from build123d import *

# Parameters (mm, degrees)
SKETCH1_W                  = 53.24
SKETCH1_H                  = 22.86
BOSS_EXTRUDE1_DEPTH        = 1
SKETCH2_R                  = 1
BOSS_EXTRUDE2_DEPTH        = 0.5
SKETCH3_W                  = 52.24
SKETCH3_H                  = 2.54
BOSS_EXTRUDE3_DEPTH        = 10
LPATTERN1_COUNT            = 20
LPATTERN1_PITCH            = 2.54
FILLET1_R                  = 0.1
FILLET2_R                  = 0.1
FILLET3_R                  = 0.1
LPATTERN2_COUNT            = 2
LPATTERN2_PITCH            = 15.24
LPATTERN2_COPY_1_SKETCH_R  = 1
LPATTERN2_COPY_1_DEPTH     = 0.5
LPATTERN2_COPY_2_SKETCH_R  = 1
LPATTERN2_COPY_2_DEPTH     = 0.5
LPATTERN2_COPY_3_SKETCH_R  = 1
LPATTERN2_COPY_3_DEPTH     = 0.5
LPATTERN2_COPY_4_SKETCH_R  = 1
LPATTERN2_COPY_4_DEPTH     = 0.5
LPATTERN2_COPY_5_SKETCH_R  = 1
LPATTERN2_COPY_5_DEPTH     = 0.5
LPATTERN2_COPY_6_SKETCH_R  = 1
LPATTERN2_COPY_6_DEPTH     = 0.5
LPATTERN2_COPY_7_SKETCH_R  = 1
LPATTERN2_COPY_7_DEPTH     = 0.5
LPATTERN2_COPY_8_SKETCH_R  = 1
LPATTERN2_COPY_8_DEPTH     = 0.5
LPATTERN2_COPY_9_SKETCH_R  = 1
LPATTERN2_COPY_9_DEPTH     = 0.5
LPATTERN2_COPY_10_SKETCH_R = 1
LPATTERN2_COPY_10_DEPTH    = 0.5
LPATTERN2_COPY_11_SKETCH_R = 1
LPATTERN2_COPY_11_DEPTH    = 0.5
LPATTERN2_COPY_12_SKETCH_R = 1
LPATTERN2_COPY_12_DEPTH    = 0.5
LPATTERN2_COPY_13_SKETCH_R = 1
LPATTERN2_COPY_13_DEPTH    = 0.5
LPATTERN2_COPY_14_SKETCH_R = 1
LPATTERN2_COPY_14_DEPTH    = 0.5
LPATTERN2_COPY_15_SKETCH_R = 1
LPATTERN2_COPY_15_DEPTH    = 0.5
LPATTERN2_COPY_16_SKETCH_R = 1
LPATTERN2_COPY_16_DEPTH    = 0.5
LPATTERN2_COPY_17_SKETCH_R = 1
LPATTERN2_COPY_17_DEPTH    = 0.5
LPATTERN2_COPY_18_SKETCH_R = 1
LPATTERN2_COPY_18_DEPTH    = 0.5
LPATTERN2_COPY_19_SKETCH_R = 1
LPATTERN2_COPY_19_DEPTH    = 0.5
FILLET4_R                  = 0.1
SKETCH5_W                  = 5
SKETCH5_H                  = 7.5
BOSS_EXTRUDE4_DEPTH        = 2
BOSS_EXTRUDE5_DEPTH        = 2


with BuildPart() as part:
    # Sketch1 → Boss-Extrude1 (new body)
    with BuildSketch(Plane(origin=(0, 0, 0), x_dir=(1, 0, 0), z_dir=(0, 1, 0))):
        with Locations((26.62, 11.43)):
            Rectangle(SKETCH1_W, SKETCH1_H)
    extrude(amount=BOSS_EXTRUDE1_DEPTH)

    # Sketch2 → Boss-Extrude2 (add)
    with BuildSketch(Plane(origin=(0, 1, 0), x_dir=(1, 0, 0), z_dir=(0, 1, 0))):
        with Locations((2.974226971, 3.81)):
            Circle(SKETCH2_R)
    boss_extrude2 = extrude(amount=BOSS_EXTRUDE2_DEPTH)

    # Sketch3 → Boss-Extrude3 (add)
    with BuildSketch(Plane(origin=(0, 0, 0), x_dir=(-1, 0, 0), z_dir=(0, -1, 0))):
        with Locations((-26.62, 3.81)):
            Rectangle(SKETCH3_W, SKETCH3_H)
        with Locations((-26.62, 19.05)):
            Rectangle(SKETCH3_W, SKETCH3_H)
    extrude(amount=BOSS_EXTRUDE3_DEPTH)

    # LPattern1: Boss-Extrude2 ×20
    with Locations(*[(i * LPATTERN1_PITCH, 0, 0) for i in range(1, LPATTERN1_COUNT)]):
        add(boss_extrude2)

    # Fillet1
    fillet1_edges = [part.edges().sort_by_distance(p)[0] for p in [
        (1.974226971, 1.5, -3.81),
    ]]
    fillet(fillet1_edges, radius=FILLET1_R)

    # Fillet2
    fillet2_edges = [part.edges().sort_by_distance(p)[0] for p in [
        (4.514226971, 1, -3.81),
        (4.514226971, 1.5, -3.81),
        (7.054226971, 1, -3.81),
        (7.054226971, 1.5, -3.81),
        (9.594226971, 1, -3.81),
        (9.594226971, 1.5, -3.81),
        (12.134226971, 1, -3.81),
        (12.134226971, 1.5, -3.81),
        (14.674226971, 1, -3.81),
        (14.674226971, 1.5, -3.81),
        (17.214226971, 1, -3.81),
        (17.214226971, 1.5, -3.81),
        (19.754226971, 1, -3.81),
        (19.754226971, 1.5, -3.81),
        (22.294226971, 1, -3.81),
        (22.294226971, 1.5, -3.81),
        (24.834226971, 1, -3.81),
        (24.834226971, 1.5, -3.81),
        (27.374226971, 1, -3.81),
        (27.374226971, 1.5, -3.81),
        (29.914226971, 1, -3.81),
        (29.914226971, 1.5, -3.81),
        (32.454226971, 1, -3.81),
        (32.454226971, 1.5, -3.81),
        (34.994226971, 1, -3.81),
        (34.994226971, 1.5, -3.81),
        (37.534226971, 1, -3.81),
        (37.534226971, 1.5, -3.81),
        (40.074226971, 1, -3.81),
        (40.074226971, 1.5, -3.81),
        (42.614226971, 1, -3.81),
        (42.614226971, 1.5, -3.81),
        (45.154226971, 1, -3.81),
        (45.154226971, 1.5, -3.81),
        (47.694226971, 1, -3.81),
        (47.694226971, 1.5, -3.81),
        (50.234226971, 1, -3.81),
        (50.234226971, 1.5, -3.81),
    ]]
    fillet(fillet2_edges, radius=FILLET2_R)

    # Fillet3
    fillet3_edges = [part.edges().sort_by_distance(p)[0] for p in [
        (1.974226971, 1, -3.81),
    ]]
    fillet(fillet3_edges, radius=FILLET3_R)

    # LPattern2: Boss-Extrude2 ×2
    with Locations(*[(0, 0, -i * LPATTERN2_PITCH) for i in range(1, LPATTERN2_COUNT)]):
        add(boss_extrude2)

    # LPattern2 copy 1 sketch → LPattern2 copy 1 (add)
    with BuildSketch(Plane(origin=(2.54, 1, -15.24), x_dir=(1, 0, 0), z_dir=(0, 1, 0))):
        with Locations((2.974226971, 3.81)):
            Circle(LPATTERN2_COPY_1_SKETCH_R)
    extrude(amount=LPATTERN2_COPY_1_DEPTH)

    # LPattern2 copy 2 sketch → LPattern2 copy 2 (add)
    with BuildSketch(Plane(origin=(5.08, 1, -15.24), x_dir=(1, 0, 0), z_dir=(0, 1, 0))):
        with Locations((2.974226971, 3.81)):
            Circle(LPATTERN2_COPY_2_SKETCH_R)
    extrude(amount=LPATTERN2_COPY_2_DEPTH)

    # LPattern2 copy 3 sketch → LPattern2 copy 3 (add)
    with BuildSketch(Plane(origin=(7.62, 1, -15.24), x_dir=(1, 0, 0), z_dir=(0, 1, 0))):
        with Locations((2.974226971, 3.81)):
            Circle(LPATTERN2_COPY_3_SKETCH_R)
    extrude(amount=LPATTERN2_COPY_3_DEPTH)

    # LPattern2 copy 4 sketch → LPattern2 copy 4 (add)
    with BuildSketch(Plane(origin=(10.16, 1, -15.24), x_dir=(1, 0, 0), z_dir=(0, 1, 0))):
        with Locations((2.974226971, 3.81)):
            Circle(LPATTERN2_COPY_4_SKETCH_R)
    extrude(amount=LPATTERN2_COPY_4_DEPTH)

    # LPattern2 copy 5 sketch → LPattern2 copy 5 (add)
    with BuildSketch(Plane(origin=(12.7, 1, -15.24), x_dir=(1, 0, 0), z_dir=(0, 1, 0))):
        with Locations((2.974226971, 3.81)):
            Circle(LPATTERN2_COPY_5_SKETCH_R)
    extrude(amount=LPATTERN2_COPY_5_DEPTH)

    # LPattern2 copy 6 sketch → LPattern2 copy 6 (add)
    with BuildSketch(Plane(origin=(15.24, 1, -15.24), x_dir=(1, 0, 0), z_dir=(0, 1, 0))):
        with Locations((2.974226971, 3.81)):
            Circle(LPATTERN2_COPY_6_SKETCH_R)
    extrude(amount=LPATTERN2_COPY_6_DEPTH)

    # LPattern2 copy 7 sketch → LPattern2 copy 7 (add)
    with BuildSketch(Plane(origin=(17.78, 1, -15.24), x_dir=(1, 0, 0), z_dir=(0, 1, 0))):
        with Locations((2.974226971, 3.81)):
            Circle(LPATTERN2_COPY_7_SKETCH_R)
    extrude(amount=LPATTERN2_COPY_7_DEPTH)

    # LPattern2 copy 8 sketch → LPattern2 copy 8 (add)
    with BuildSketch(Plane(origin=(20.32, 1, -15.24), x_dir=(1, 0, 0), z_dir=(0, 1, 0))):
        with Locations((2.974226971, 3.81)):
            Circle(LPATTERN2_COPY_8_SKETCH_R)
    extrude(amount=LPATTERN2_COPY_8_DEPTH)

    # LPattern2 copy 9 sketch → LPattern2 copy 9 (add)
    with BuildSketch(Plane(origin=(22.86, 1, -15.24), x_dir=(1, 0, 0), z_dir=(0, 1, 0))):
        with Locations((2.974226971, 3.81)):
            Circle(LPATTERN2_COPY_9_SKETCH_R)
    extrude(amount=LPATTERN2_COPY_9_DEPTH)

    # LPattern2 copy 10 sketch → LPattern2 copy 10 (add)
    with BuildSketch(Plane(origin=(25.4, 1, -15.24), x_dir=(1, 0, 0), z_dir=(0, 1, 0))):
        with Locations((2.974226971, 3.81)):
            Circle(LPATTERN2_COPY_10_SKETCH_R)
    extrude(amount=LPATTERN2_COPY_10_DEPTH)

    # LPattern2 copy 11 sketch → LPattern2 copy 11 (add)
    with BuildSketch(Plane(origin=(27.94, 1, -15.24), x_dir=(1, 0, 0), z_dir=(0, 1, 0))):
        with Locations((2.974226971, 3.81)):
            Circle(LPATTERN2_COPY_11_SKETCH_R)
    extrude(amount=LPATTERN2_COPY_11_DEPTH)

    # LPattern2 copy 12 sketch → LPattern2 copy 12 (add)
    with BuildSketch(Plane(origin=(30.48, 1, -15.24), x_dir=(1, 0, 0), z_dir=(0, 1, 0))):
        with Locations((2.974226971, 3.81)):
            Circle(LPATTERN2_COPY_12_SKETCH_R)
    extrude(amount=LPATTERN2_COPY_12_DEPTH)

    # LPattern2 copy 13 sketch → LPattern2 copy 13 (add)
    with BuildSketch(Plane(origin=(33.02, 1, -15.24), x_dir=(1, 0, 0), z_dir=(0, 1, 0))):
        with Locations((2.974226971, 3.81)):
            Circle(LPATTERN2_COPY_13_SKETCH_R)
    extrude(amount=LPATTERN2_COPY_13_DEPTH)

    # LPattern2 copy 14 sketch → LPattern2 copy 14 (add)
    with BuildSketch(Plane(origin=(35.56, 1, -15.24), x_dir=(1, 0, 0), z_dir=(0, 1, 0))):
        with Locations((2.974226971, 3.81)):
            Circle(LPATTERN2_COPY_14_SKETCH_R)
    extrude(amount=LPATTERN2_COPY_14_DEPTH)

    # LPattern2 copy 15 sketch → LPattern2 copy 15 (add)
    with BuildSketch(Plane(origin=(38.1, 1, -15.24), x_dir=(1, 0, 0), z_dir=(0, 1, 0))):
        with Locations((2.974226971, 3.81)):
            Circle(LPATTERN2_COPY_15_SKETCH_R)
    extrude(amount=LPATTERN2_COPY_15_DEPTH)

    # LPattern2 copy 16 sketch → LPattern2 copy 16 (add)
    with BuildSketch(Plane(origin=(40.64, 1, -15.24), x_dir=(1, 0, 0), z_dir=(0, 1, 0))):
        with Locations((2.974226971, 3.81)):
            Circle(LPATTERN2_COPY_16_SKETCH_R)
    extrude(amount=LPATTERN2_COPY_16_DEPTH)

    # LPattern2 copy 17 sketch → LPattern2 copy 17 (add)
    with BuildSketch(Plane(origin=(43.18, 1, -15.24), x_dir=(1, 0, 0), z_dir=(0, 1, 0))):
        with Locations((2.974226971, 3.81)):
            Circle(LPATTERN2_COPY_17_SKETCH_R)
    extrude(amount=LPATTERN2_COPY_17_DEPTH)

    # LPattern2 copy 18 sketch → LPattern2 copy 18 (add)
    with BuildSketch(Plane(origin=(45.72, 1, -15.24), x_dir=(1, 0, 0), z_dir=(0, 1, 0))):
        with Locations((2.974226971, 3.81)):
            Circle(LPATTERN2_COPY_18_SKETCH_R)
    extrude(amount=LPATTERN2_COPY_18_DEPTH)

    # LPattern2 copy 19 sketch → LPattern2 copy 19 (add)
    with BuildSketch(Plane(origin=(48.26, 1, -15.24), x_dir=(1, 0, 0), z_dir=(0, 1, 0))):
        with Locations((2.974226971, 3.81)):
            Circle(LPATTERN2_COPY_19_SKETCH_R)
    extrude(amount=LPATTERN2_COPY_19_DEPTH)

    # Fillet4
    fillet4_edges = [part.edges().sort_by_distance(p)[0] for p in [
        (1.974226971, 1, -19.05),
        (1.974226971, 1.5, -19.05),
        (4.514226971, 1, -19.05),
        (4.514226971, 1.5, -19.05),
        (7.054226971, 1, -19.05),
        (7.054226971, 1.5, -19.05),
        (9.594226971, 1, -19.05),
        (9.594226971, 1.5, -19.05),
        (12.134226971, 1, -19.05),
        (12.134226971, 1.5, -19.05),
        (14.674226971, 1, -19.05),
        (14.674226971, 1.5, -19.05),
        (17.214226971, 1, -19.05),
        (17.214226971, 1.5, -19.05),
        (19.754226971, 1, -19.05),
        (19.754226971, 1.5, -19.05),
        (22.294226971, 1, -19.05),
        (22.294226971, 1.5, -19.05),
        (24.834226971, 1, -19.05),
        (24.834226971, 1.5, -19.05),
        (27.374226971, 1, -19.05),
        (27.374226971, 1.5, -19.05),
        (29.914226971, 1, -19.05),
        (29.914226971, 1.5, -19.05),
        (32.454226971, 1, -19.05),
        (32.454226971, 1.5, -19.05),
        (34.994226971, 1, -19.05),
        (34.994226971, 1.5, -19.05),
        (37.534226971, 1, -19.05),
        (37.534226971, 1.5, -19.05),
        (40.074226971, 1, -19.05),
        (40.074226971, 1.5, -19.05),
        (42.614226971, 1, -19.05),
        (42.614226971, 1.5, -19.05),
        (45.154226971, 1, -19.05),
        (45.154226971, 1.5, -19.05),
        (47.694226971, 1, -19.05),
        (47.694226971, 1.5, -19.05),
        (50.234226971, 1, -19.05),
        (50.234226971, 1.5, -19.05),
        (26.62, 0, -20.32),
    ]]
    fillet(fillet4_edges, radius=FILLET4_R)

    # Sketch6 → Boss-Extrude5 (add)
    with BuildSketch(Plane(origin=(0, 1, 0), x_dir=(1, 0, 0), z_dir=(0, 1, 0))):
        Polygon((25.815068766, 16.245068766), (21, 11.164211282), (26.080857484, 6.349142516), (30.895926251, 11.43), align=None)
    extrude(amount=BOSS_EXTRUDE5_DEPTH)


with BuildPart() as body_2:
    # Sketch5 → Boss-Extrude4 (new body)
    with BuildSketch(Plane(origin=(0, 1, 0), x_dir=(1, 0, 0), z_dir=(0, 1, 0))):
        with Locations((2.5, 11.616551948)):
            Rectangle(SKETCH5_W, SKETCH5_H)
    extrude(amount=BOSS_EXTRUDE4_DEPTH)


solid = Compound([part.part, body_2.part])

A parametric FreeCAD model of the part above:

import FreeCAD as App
import Part
import Sketcher

V = App.Vector


def edges_at(feature, points):
    """Names of the edges that pass closest to the given points."""
    edges = feature.Shape.Edges
    near = lambda p: min(range(len(edges)), key=lambda i: edges[i].distToShape(Part.Vertex(*p))[0])
    return sorted({f"Edge{near(p) + 1}" for p in points})


def add_polygon(sketch, points):
    """Adds a closed chain of lines whose ends are joined by coincident constraints."""
    first, n = sketch.GeometryCount, len(points)
    for a, b in zip(points, points[1:] + points[:1]):
        sketch.addGeometry(Part.LineSegment(App.Vector(*a, 0), App.Vector(*b, 0)), False)
    for i in range(n):
        sketch.addConstraint(Sketcher.Constraint("Coincident", first + i, 2, first + (i + 1) % n, 1))

doc = App.newDocument("Part")
body = doc.addObject("PartDesign::Body", "Body")

sketch1 = body.newObject("Sketcher::SketchObject", "Sketch")
sketch1.AttachmentSupport = (doc.getObject("XZ_Plane"), [""])
sketch1.MapMode = "FlatFace"
add_polygon(sketch1, [(0, -23), (0, 0), (53, 0), (53, -23)])
sketch1.addConstraint(Sketcher.Constraint("Vertical", 0))
sketch1.addConstraint(Sketcher.Constraint("Horizontal", 1))
sketch1.addConstraint(Sketcher.Constraint("Vertical", 2))
sketch1.addConstraint(Sketcher.Constraint("Horizontal", 3))
sketch1.addConstraint(Sketcher.Constraint("Coincident", 0, 2, -1, 1))
sketch1.addConstraint(Sketcher.Constraint("DistanceX", 1, 1, 1, 2, 53.24))
sketch1.addConstraint(Sketcher.Constraint("DistanceY", 0, 1, 0, 2, 22.86))
pad1 = body.newObject("PartDesign::Pad", "Pad")
pad1.Profile = sketch1
pad1.Length = 1
pad1.Reversed = True

sketch2 = body.newObject("Sketcher::SketchObject", "Sketch001")
sketch2.AttachmentSupport = (doc.getObject("XZ_Plane"), [""])
sketch2.MapMode = "FlatFace"
sketch2.AttachmentOffset = App.Placement(V(0, 0, -1), App.Rotation())
sketch2.addGeometry(Part.Circle(V(3, -3.8, 0), V(0, 0, 1), 1), False)
sketch2.addConstraint(Sketcher.Constraint("Diameter", 0, 2.0))
sketch2.addConstraint(Sketcher.Constraint("DistanceY", 0, 3, -1, 1, 3.81))
sketch2.addConstraint(Sketcher.Constraint("DistanceX", -1, 1, 0, 3, 2.974227))
pad2 = body.newObject("PartDesign::Pad", "Pad001")
pad2.Profile = sketch2
pad2.Length = 0.5
pad2.Reversed = True

sketch3 = body.newObject("Sketcher::SketchObject", "Sketch002")
sketch3.AttachmentSupport = (doc.getObject("XZ_Plane"), [""])
sketch3.MapMode = "FlatFace"
add_polygon(sketch3, [(52.7, -5.1), (52.7, -2.5), (0.5, -2.5), (0.5, -5.1)])
add_polygon(sketch3, [(52.7, -20.3), (52.7, -17.8), (0.5, -17.8), (0.5, -20.3)])
sketch3.addConstraint(Sketcher.Constraint("Vertical", 0))
sketch3.addConstraint(Sketcher.Constraint("Horizontal", 1))
sketch3.addConstraint(Sketcher.Constraint("Vertical", 2))
sketch3.addConstraint(Sketcher.Constraint("Horizontal", 3))
sketch3.addConstraint(Sketcher.Constraint("Vertical", 4))
sketch3.addConstraint(Sketcher.Constraint("Horizontal", 5))
sketch3.addConstraint(Sketcher.Constraint("Vertical", 6))
sketch3.addConstraint(Sketcher.Constraint("Horizontal", 7))
sketch3.addConstraint(Sketcher.Constraint("Vertical", 3, 2, 4, 2))
sketch3.addConstraint(Sketcher.Constraint("Vertical", 2, 2, 5, 2))
sketch3.addConstraint(Sketcher.Constraint("Equal", 2, 4))
sketch3.addConstraint(Sketcher.Constraint("DistanceX", 1, 2, 1, 1, 52.24))
sketch3.addConstraint(Sketcher.Constraint("DistanceY", 0, 1, 0, 2, 2.54))
sketch3.addConstraint(Sketcher.Constraint("DistanceX", -1, 1, 1, 2, 0.5))
sketch3.addConstraint(Sketcher.Constraint("DistanceY", 4, 2, 3, 2, 12.7))
sketch3.addConstraint(Sketcher.Constraint("DistanceY", 0, 2, -1, 1, 2.54))
pad3 = body.newObject("PartDesign::Pad", "Pad002")
pad3.Profile = sketch3
pad3.Length = 10
doc.recompute()

linearpattern = body.newObject("PartDesign::LinearPattern", "LinearPattern")
linearpattern.Originals = [pad2]
linearpattern.Direction = (doc.getObject("X_Axis"), [""])
linearpattern.Mode = "offset"
linearpattern.Offset = 2.54
linearpattern.Occurrences = 20
body.Tip = linearpattern
doc.recompute()

fillet = body.newObject("PartDesign::Fillet", "Fillet")
fillet.Base = (linearpattern, edges_at(linearpattern, [(1.974, 1.5, -3.81)]))
fillet.Radius = 0.1
doc.recompute()

fillet2 = body.newObject("PartDesign::Fillet", "Fillet001")
fillet2.Base = (fillet, edges_at(fillet, [
    (4.514, 1, -3.81),
    (4.514, 1.5, -3.81),
    (7.054, 1, -3.81),
    (7.054, 1.5, -3.81),
    (9.594, 1, -3.81),
    (9.594, 1.5, -3.81),
    (12.134, 1, -3.81),
    (12.134, 1.5, -3.81),
    (14.674, 1, -3.81),
    (14.674, 1.5, -3.81),
    (17.214, 1, -3.81),
    (17.214, 1.5, -3.81),
    (19.754, 1, -3.81),
    (19.754, 1.5, -3.81),
    (22.294, 1, -3.81),
    (22.294, 1.5, -3.81),
    (24.834, 1, -3.81),
    (24.834, 1.5, -3.81),
    (27.374, 1, -3.81),
    (27.374, 1.5, -3.81),
    (29.914, 1, -3.81),
    (29.914, 1.5, -3.81),
    (32.454, 1, -3.81),
    (32.454, 1.5, -3.81),
    (34.994, 1, -3.81),
    (34.994, 1.5, -3.81),
    (37.534, 1, -3.81),
    (37.534, 1.5, -3.81),
    (40.074, 1, -3.81),
    (40.074, 1.5, -3.81),
    (42.614, 1, -3.81),
    (42.614, 1.5, -3.81),
    (45.154, 1, -3.81),
    (45.154, 1.5, -3.81),
    (47.694, 1, -3.81),
    (47.694, 1.5, -3.81),
    (50.234, 1, -3.81),
    (50.234, 1.5, -3.81),
]))
fillet2.Radius = 0.1
doc.recompute()

fillet3 = body.newObject("PartDesign::Fillet", "Fillet002")
fillet3.Base = (fillet2, edges_at(fillet2, [(1.974, 1, -3.81)]))
fillet3.Radius = 0.1
doc.recompute()

linearpattern2 = body.newObject("PartDesign::LinearPattern", "LinearPattern001")
linearpattern2.Originals = [pad2]
linearpattern2.Direction = (doc.getObject("Z_Axis"), [""])
linearpattern2.Mode = "offset"
linearpattern2.Offset = 15.24
linearpattern2.Occurrences = 2
linearpattern2.Reversed = True
body.Tip = linearpattern2

sketch4 = body.newObject("Sketcher::SketchObject", "Sketch003")
sketch4.AttachmentSupport = (doc.getObject("XZ_Plane"), [""])
sketch4.MapMode = "FlatFace"
sketch4.AttachmentOffset = App.Placement(V(0, 0, -1), App.Rotation())
sketch4.addGeometry(Part.Circle(V(5.5, -19.1, 0), V(0, 0, 1), 1), False)
sketch4.addConstraint(Sketcher.Constraint("Diameter", 0, 2.0))
sketch4.addConstraint(Sketcher.Constraint("DistanceY", 0, 3, -1, 1, 19.05))
sketch4.addConstraint(Sketcher.Constraint("DistanceX", -1, 1, 0, 3, 5.514227))
pad4 = body.newObject("PartDesign::Pad", "Pad003")
pad4.Profile = sketch4
pad4.Length = 0.5
pad4.Reversed = True

sketch5 = body.newObject("Sketcher::SketchObject", "Sketch004")
sketch5.AttachmentSupport = (doc.getObject("XZ_Plane"), [""])
sketch5.MapMode = "FlatFace"
sketch5.AttachmentOffset = App.Placement(V(0, 0, -1), App.Rotation())
sketch5.addGeometry(Part.Circle(V(8.1, -19.1, 0), V(0, 0, 1), 1), False)
sketch5.addConstraint(Sketcher.Constraint("Diameter", 0, 2.0))
sketch5.addConstraint(Sketcher.Constraint("DistanceY", 0, 3, -1, 1, 19.05))
sketch5.addConstraint(Sketcher.Constraint("DistanceX", -1, 1, 0, 3, 8.054227))
pad5 = body.newObject("PartDesign::Pad", "Pad004")
pad5.Profile = sketch5
pad5.Length = 0.5
pad5.Reversed = True

sketch6 = body.newObject("Sketcher::SketchObject", "Sketch005")
sketch6.AttachmentSupport = (doc.getObject("XZ_Plane"), [""])
sketch6.MapMode = "FlatFace"
sketch6.AttachmentOffset = App.Placement(V(0, 0, -1), App.Rotation())
sketch6.addGeometry(Part.Circle(V(10.6, -19.1, 0), V(0, 0, 1), 1), False)
sketch6.addConstraint(Sketcher.Constraint("Diameter", 0, 2.0))
sketch6.addConstraint(Sketcher.Constraint("DistanceY", 0, 3, -1, 1, 19.05))
sketch6.addConstraint(Sketcher.Constraint("DistanceX", -1, 1, 0, 3, 10.594227))
pad6 = body.newObject("PartDesign::Pad", "Pad005")
pad6.Profile = sketch6
pad6.Length = 0.5
pad6.Reversed = True

sketch7 = body.newObject("Sketcher::SketchObject", "Sketch006")
sketch7.AttachmentSupport = (doc.getObject("XZ_Plane"), [""])
sketch7.MapMode = "FlatFace"
sketch7.AttachmentOffset = App.Placement(V(0, 0, -1), App.Rotation())
sketch7.addGeometry(Part.Circle(V(13.1, -19.1, 0), V(0, 0, 1), 1), False)
sketch7.addConstraint(Sketcher.Constraint("Diameter", 0, 2.0))
sketch7.addConstraint(Sketcher.Constraint("DistanceY", 0, 3, -1, 1, 19.05))
sketch7.addConstraint(Sketcher.Constraint("DistanceX", -1, 1, 0, 3, 13.134227))
pad7 = body.newObject("PartDesign::Pad", "Pad006")
pad7.Profile = sketch7
pad7.Length = 0.5
pad7.Reversed = True

sketch8 = body.newObject("Sketcher::SketchObject", "Sketch007")
sketch8.AttachmentSupport = (doc.getObject("XZ_Plane"), [""])
sketch8.MapMode = "FlatFace"
sketch8.AttachmentOffset = App.Placement(V(0, 0, -1), App.Rotation())
sketch8.addGeometry(Part.Circle(V(15.7, -19.1, 0), V(0, 0, 1), 1), False)
sketch8.addConstraint(Sketcher.Constraint("Diameter", 0, 2.0))
sketch8.addConstraint(Sketcher.Constraint("DistanceY", 0, 3, -1, 1, 19.05))
sketch8.addConstraint(Sketcher.Constraint("DistanceX", -1, 1, 0, 3, 15.674227))
pad8 = body.newObject("PartDesign::Pad", "Pad007")
pad8.Profile = sketch8
pad8.Length = 0.5
pad8.Reversed = True

sketch9 = body.newObject("Sketcher::SketchObject", "Sketch008")
sketch9.AttachmentSupport = (doc.getObject("XZ_Plane"), [""])
sketch9.MapMode = "FlatFace"
sketch9.AttachmentOffset = App.Placement(V(0, 0, -1), App.Rotation())
sketch9.addGeometry(Part.Circle(V(18.2, -19.1, 0), V(0, 0, 1), 1), False)
sketch9.addConstraint(Sketcher.Constraint("Diameter", 0, 2.0))
sketch9.addConstraint(Sketcher.Constraint("DistanceY", 0, 3, -1, 1, 19.05))
sketch9.addConstraint(Sketcher.Constraint("DistanceX", -1, 1, 0, 3, 18.214227))
pad9 = body.newObject("PartDesign::Pad", "Pad008")
pad9.Profile = sketch9
pad9.Length = 0.5
pad9.Reversed = True

sketch10 = body.newObject("Sketcher::SketchObject", "Sketch009")
sketch10.AttachmentSupport = (doc.getObject("XZ_Plane"), [""])
sketch10.MapMode = "FlatFace"
sketch10.AttachmentOffset = App.Placement(V(0, 0, -1), App.Rotation())
sketch10.addGeometry(Part.Circle(V(20.8, -19.1, 0), V(0, 0, 1), 1), False)
sketch10.addConstraint(Sketcher.Constraint("Diameter", 0, 2.0))
sketch10.addConstraint(Sketcher.Constraint("DistanceY", 0, 3, -1, 1, 19.05))
sketch10.addConstraint(Sketcher.Constraint("DistanceX", -1, 1, 0, 3, 20.754227))
pad10 = body.newObject("PartDesign::Pad", "Pad009")
pad10.Profile = sketch10
pad10.Length = 0.5
pad10.Reversed = True

sketch11 = body.newObject("Sketcher::SketchObject", "Sketch010")
sketch11.AttachmentSupport = (doc.getObject("XZ_Plane"), [""])
sketch11.MapMode = "FlatFace"
sketch11.AttachmentOffset = App.Placement(V(0, 0, -1), App.Rotation())
sketch11.addGeometry(Part.Circle(V(23.3, -19.1, 0), V(0, 0, 1), 1), False)
sketch11.addConstraint(Sketcher.Constraint("Diameter", 0, 2.0))
sketch11.addConstraint(Sketcher.Constraint("DistanceY", 0, 3, -1, 1, 19.05))
sketch11.addConstraint(Sketcher.Constraint("DistanceX", -1, 1, 0, 3, 23.294227))
pad11 = body.newObject("PartDesign::Pad", "Pad010")
pad11.Profile = sketch11
pad11.Length = 0.5
pad11.Reversed = True

sketch12 = body.newObject("Sketcher::SketchObject", "Sketch011")
sketch12.AttachmentSupport = (doc.getObject("XZ_Plane"), [""])
sketch12.MapMode = "FlatFace"
sketch12.AttachmentOffset = App.Placement(V(0, 0, -1), App.Rotation())
sketch12.addGeometry(Part.Circle(V(25.8, -19.1, 0), V(0, 0, 1), 1), False)
sketch12.addConstraint(Sketcher.Constraint("Diameter", 0, 2.0))
sketch12.addConstraint(Sketcher.Constraint("DistanceY", 0, 3, -1, 1, 19.05))
sketch12.addConstraint(Sketcher.Constraint("DistanceX", -1, 1, 0, 3, 25.834227))
pad12 = body.newObject("PartDesign::Pad", "Pad011")
pad12.Profile = sketch12
pad12.Length = 0.5
pad12.Reversed = True

sketch13 = body.newObject("Sketcher::SketchObject", "Sketch012")
sketch13.AttachmentSupport = (doc.getObject("XZ_Plane"), [""])
sketch13.MapMode = "FlatFace"
sketch13.AttachmentOffset = App.Placement(V(0, 0, -1), App.Rotation())
sketch13.addGeometry(Part.Circle(V(28.4, -19.1, 0), V(0, 0, 1), 1), False)
sketch13.addConstraint(Sketcher.Constraint("Diameter", 0, 2.0))
sketch13.addConstraint(Sketcher.Constraint("DistanceY", 0, 3, -1, 1, 19.05))
sketch13.addConstraint(Sketcher.Constraint("DistanceX", -1, 1, 0, 3, 28.374227))
pad13 = body.newObject("PartDesign::Pad", "Pad012")
pad13.Profile = sketch13
pad13.Length = 0.5
pad13.Reversed = True

sketch14 = body.newObject("Sketcher::SketchObject", "Sketch013")
sketch14.AttachmentSupport = (doc.getObject("XZ_Plane"), [""])
sketch14.MapMode = "FlatFace"
sketch14.AttachmentOffset = App.Placement(V(0, 0, -1), App.Rotation())
sketch14.addGeometry(Part.Circle(V(30.9, -19.1, 0), V(0, 0, 1), 1), False)
sketch14.addConstraint(Sketcher.Constraint("Diameter", 0, 2.0))
sketch14.addConstraint(Sketcher.Constraint("DistanceY", 0, 3, -1, 1, 19.05))
sketch14.addConstraint(Sketcher.Constraint("DistanceX", -1, 1, 0, 3, 30.914227))
pad14 = body.newObject("PartDesign::Pad", "Pad013")
pad14.Profile = sketch14
pad14.Length = 0.5
pad14.Reversed = True

sketch15 = body.newObject("Sketcher::SketchObject", "Sketch014")
sketch15.AttachmentSupport = (doc.getObject("XZ_Plane"), [""])
sketch15.MapMode = "FlatFace"
sketch15.AttachmentOffset = App.Placement(V(0, 0, -1), App.Rotation())
sketch15.addGeometry(Part.Circle(V(33.5, -19.1, 0), V(0, 0, 1), 1), False)
sketch15.addConstraint(Sketcher.Constraint("Diameter", 0, 2.0))
sketch15.addConstraint(Sketcher.Constraint("DistanceY", 0, 3, -1, 1, 19.05))
sketch15.addConstraint(Sketcher.Constraint("DistanceX", -1, 1, 0, 3, 33.454227))
pad15 = body.newObject("PartDesign::Pad", "Pad014")
pad15.Profile = sketch15
pad15.Length = 0.5
pad15.Reversed = True

sketch16 = body.newObject("Sketcher::SketchObject", "Sketch015")
sketch16.AttachmentSupport = (doc.getObject("XZ_Plane"), [""])
sketch16.MapMode = "FlatFace"
sketch16.AttachmentOffset = App.Placement(V(0, 0, -1), App.Rotation())
sketch16.addGeometry(Part.Circle(V(36, -19.1, 0), V(0, 0, 1), 1), False)
sketch16.addConstraint(Sketcher.Constraint("Diameter", 0, 2.0))
sketch16.addConstraint(Sketcher.Constraint("DistanceY", 0, 3, -1, 1, 19.05))
sketch16.addConstraint(Sketcher.Constraint("DistanceX", -1, 1, 0, 3, 35.994227))
pad16 = body.newObject("PartDesign::Pad", "Pad015")
pad16.Profile = sketch16
pad16.Length = 0.5
pad16.Reversed = True

sketch17 = body.newObject("Sketcher::SketchObject", "Sketch016")
sketch17.AttachmentSupport = (doc.getObject("XZ_Plane"), [""])
sketch17.MapMode = "FlatFace"
sketch17.AttachmentOffset = App.Placement(V(0, 0, -1), App.Rotation())
sketch17.addGeometry(Part.Circle(V(38.5, -19.1, 0), V(0, 0, 1), 1), False)
sketch17.addConstraint(Sketcher.Constraint("Diameter", 0, 2.0))
sketch17.addConstraint(Sketcher.Constraint("DistanceY", 0, 3, -1, 1, 19.05))
sketch17.addConstraint(Sketcher.Constraint("DistanceX", -1, 1, 0, 3, 38.534227))
pad17 = body.newObject("PartDesign::Pad", "Pad016")
pad17.Profile = sketch17
pad17.Length = 0.5
pad17.Reversed = True

sketch18 = body.newObject("Sketcher::SketchObject", "Sketch017")
sketch18.AttachmentSupport = (doc.getObject("XZ_Plane"), [""])
sketch18.MapMode = "FlatFace"
sketch18.AttachmentOffset = App.Placement(V(0, 0, -1), App.Rotation())
sketch18.addGeometry(Part.Circle(V(41.1, -19.1, 0), V(0, 0, 1), 1), False)
sketch18.addConstraint(Sketcher.Constraint("Diameter", 0, 2.0))
sketch18.addConstraint(Sketcher.Constraint("DistanceY", 0, 3, -1, 1, 19.05))
sketch18.addConstraint(Sketcher.Constraint("DistanceX", -1, 1, 0, 3, 41.074227))
pad18 = body.newObject("PartDesign::Pad", "Pad017")
pad18.Profile = sketch18
pad18.Length = 0.5
pad18.Reversed = True

sketch19 = body.newObject("Sketcher::SketchObject", "Sketch018")
sketch19.AttachmentSupport = (doc.getObject("XZ_Plane"), [""])
sketch19.MapMode = "FlatFace"
sketch19.AttachmentOffset = App.Placement(V(0, 0, -1), App.Rotation())
sketch19.addGeometry(Part.Circle(V(43.6, -19.1, 0), V(0, 0, 1), 1), False)
sketch19.addConstraint(Sketcher.Constraint("Diameter", 0, 2.0))
sketch19.addConstraint(Sketcher.Constraint("DistanceY", 0, 3, -1, 1, 19.05))
sketch19.addConstraint(Sketcher.Constraint("DistanceX", -1, 1, 0, 3, 43.614227))
pad19 = body.newObject("PartDesign::Pad", "Pad018")
pad19.Profile = sketch19
pad19.Length = 0.5
pad19.Reversed = True

sketch20 = body.newObject("Sketcher::SketchObject", "Sketch019")
sketch20.AttachmentSupport = (doc.getObject("XZ_Plane"), [""])
sketch20.MapMode = "FlatFace"
sketch20.AttachmentOffset = App.Placement(V(0, 0, -1), App.Rotation())
sketch20.addGeometry(Part.Circle(V(46.2, -19.1, 0), V(0, 0, 1), 1), False)
sketch20.addConstraint(Sketcher.Constraint("Diameter", 0, 2.0))
sketch20.addConstraint(Sketcher.Constraint("DistanceY", 0, 3, -1, 1, 19.05))
sketch20.addConstraint(Sketcher.Constraint("DistanceX", -1, 1, 0, 3, 46.154227))
pad20 = body.newObject("PartDesign::Pad", "Pad019")
pad20.Profile = sketch20
pad20.Length = 0.5
pad20.Reversed = True

sketch21 = body.newObject("Sketcher::SketchObject", "Sketch020")
sketch21.AttachmentSupport = (doc.getObject("XZ_Plane"), [""])
sketch21.MapMode = "FlatFace"
sketch21.AttachmentOffset = App.Placement(V(0, 0, -1), App.Rotation())
sketch21.addGeometry(Part.Circle(V(48.7, -19.1, 0), V(0, 0, 1), 1), False)
sketch21.addConstraint(Sketcher.Constraint("Diameter", 0, 2.0))
sketch21.addConstraint(Sketcher.Constraint("DistanceY", 0, 3, -1, 1, 19.05))
sketch21.addConstraint(Sketcher.Constraint("DistanceX", -1, 1, 0, 3, 48.694227))
pad21 = body.newObject("PartDesign::Pad", "Pad020")
pad21.Profile = sketch21
pad21.Length = 0.5
pad21.Reversed = True

sketch22 = body.newObject("Sketcher::SketchObject", "Sketch021")
sketch22.AttachmentSupport = (doc.getObject("XZ_Plane"), [""])
sketch22.MapMode = "FlatFace"
sketch22.AttachmentOffset = App.Placement(V(0, 0, -1), App.Rotation())
sketch22.addGeometry(Part.Circle(V(51.2, -19.1, 0), V(0, 0, 1), 1), False)
sketch22.addConstraint(Sketcher.Constraint("Diameter", 0, 2.0))
sketch22.addConstraint(Sketcher.Constraint("DistanceY", 0, 3, -1, 1, 19.05))
sketch22.addConstraint(Sketcher.Constraint("DistanceX", -1, 1, 0, 3, 51.234227))
pad22 = body.newObject("PartDesign::Pad", "Pad021")
pad22.Profile = sketch22
pad22.Length = 0.5
pad22.Reversed = True
doc.recompute()

fillet4 = body.newObject("PartDesign::Fillet", "Fillet003")
fillet4.Base = (pad22, edges_at(pad22, [
    (1.974, 1, -19.05),
    (1.974, 1.5, -19.05),
    (4.514, 1, -19.05),
    (4.514, 1.5, -19.05),
    (7.054, 1, -19.05),
    (7.054, 1.5, -19.05),
    (9.594, 1, -19.05),
    (9.594, 1.5, -19.05),
    (12.134, 1, -19.05),
    (12.134, 1.5, -19.05),
    (14.674, 1, -19.05),
    (14.674, 1.5, -19.05),
    (17.214, 1, -19.05),
    (17.214, 1.5, -19.05),
    (19.754, 1, -19.05),
    (19.754, 1.5, -19.05),
    (22.294, 1, -19.05),
    (22.294, 1.5, -19.05),
    (24.834, 1, -19.05),
    (24.834, 1.5, -19.05),
    (27.374, 1, -19.05),
    (27.374, 1.5, -19.05),
    (29.914, 1, -19.05),
    (29.914, 1.5, -19.05),
    (32.454, 1, -19.05),
    (32.454, 1.5, -19.05),
    (34.994, 1, -19.05),
    (34.994, 1.5, -19.05),
    (37.534, 1, -19.05),
    (37.534, 1.5, -19.05),
    (40.074, 1, -19.05),
    (40.074, 1.5, -19.05),
    (42.614, 1, -19.05),
    (42.614, 1.5, -19.05),
    (45.154, 1, -19.05),
    (45.154, 1.5, -19.05),
    (47.694, 1, -19.05),
    (47.694, 1.5, -19.05),
    (50.234, 1, -19.05),
    (50.234, 1.5, -19.05),
    (26.62, 0, -20.32),
]))
fillet4.Radius = 0.1

sketch23 = body.newObject("Sketcher::SketchObject", "Sketch022")
sketch23.AttachmentSupport = (doc.getObject("XZ_Plane"), [""])
sketch23.MapMode = "FlatFace"
sketch23.AttachmentOffset = App.Placement(V(0, 0, -1), App.Rotation())
add_polygon(sketch23, [(26, -16), (21, -11), (26, -6), (31, -11)])
sketch23.addConstraint(Sketcher.Constraint("Perpendicular", 0, 1))
sketch23.addConstraint(Sketcher.Constraint("Perpendicular", 1, 2))
sketch23.addConstraint(Sketcher.Constraint("Perpendicular", 2, 3))
sketch23.addConstraint(Sketcher.Constraint("Equal", 0, 1))
sketch23.addConstraint(Sketcher.Constraint("Distance", 0, 7.0))
sketch23.addConstraint(Sketcher.Constraint("DistanceX", -1, 1, 0, 2, 21.0))
sketch23.addConstraint(Sketcher.Constraint("DistanceY", 2, 2, -1, 1, 11.43))
sketch23.addConstraint(Sketcher.Constraint("DistanceY", 0, 2, -1, 1, 11.164211))
pad23 = body.newObject("PartDesign::Pad", "Pad022")
pad23.Profile = sketch23
pad23.Length = 2
pad23.Reversed = True
body2 = doc.addObject("PartDesign::Body", "Body001")

sketch24 = body2.newObject("Sketcher::SketchObject", "Sketch023")
sketch24.AttachmentSupport = (doc.getObject("XZ_Plane001"), [""])
sketch24.MapMode = "FlatFace"
sketch24.AttachmentOffset = App.Placement(V(0, 0, -1), App.Rotation())
add_polygon(sketch24, [(0, -15), (0, -8), (5, -8), (5, -15)])
sketch24.addConstraint(Sketcher.Constraint("Vertical", 0))
sketch24.addConstraint(Sketcher.Constraint("Horizontal", 1))
sketch24.addConstraint(Sketcher.Constraint("Vertical", 2))
sketch24.addConstraint(Sketcher.Constraint("Horizontal", 3))
sketch24.addConstraint(Sketcher.Constraint("PointOnObject", 0, 2, -2))
sketch24.addConstraint(Sketcher.Constraint("DistanceX", 1, 1, 1, 2, 5.0))
sketch24.addConstraint(Sketcher.Constraint("DistanceY", 0, 1, 0, 2, 7.5))
sketch24.addConstraint(Sketcher.Constraint("DistanceY", 0, 2, -1, 1, 7.866552))
pad24 = body2.newObject("PartDesign::Pad", "Pad023")
pad24.Profile = sketch24
pad24.Length = 2
pad24.Reversed = True

doc.recompute()
